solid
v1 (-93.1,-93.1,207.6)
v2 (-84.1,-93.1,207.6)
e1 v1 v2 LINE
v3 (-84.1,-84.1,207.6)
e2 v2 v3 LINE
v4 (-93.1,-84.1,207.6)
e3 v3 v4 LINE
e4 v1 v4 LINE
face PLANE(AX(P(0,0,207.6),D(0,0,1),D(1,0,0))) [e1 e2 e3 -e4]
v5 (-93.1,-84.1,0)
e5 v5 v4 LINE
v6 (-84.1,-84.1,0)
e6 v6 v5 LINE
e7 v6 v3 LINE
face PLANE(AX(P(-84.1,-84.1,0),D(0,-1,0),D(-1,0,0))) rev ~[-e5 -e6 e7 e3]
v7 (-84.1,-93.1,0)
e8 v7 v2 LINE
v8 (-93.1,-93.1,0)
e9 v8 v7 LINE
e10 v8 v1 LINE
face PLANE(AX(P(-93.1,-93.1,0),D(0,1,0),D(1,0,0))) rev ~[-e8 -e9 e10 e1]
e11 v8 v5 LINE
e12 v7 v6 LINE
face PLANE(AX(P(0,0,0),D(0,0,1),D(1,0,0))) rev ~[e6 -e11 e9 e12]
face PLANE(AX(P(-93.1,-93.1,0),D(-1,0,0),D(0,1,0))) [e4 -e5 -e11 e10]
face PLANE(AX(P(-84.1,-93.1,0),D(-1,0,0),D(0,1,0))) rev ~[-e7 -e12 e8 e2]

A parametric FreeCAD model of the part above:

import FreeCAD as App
import Part
import Sketcher


def add_polygon(sketch, points):
    """Adds a closed chain of lines whose ends are joined by coincident constraints."""
    first, n = sketch.GeometryCount, len(points)
    for a, b in zip(points, points[1:] + points[:1]):
        sketch.addGeometry(Part.LineSegment(App.Vector(*a, 0), App.Vector(*b, 0)), False)
    for i in range(n):
        sketch.addConstraint(Sketcher.Constraint("Coincident", first + i, 2, first + (i + 1) % n, 1))

doc = App.newDocument("Part")
params = doc.addObject("Spreadsheet::Sheet", "Params")
for row, (alias, value) in enumerate([
    ("sketch1_width", "9 mm"),
    ("pad1_length", "207.6 mm"),
], start=1):
    params.set(f"A{row}", alias)
    params.set(f"B{row}", "=" + value)
    params.setAlias(f"B{row}", alias)

body = doc.addObject("PartDesign::Body", "Body")

# Sketch on XY plane
sketch1 = body.newObject("Sketcher::SketchObject", "Sketch")
sketch1.AttachmentSupport = (doc.getObject("XY_Plane"), [""])
sketch1.MapMode = "FlatFace"
add_polygon(sketch1, [(-93.1, -93.1), (-84.1, -93.1), (-84.1, -84.1), (-93.1, -84.1)])  # lines 0-3
sketch1.addConstraint(Sketcher.Constraint("Horizontal", 0))
sketch1.addConstraint(Sketcher.Constraint("Vertical", 1))
sketch1.addConstraint(Sketcher.Constraint("Horizontal", 2))
sketch1.addConstraint(Sketcher.Constraint("Vertical", 3))
sketch1.addConstraint(Sketcher.Constraint("Equal", 2, 1))
sketch1.addConstraint(Sketcher.Constraint("DistanceX", 0, 1, 0, 2, 9.0))
sketch1.addConstraint(Sketcher.Constraint("DistanceX", 0, 2, -1, 1, 84.1))
sketch1.addConstraint(Sketcher.Constraint("DistanceY", 0, 2, -1, 1, 93.1))
sketch1.setExpression("Constraints[9]", "Params.sketch1_width")
pad1 = body.newObject("PartDesign::Pad", "Pad")
pad1.Profile = sketch1
pad1.setExpression("Length", "Params.pad1_length")

doc.recompute()
